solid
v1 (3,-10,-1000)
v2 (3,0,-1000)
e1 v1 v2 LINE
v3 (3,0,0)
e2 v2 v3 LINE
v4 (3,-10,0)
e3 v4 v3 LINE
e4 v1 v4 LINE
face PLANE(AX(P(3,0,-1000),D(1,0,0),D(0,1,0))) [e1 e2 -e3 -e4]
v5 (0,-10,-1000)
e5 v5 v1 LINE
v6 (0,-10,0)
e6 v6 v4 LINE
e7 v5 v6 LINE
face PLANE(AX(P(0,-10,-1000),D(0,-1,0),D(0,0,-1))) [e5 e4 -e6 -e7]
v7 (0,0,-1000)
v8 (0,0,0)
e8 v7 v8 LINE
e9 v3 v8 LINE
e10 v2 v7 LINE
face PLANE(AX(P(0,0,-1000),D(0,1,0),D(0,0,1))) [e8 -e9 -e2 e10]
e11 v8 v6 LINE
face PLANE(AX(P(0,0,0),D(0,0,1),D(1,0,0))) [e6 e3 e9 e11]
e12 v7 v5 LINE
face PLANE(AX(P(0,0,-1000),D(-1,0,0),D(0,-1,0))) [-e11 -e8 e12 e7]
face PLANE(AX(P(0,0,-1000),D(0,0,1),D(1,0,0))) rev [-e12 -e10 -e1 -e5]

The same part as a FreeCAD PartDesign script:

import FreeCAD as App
import Part
import Sketcher


def add_polygon(sketch, points):
    """Adds a closed chain of lines whose ends are joined by coincident constraints."""
    first, n = sketch.GeometryCount, len(points)
    for a, b in zip(points, points[1:] + points[:1]):
        sketch.addGeometry(Part.LineSegment(App.Vector(*a, 0), App.Vector(*b, 0)), False)
    for i in range(n):
        sketch.addConstraint(Sketcher.Constraint("Coincident", first + i, 2, first + (i + 1) % n, 1))

doc = App.newDocument("Part")
body = doc.addObject("PartDesign::Body", "Body")

# Sketch on XY plane
sketch1 = doc.addObject("Sketcher::SketchObject", "Sketch")
body.addObject(sketch1)
sketch1.AttachmentSupport = (doc.XY_Plane, [""])
sketch1.MapMode = "FlatFace"
add_polygon(sketch1, [(0, 0), (0, -10), (3, -10), (3, 0)])  # lines 0-3
sketch1.addConstraint(Sketcher.Constraint("Vertical", 0))
sketch1.addConstraint(Sketcher.Constraint("Horizontal", 1))
sketch1.addConstraint(Sketcher.Constraint("Vertical", 2))
sketch1.addConstraint(Sketcher.Constraint("Horizontal", 3))
sketch1.addConstraint(Sketcher.Constraint("Coincident", 3, 2, -1, 1))
sketch1.addConstraint(Sketcher.Constraint("DistanceX", 1, 1, 1, 2, 3.0))
sketch1.addConstraint(Sketcher.Constraint("DistanceY", 0, 2, 0, 1, 10.0))
pad1 = doc.addObject("PartDesign::Pad", "Pad")
body.addObject(pad1)
pad1.Profile = sketch1
pad1.Length = 1000
pad1.Reversed = True

doc.recompute()
